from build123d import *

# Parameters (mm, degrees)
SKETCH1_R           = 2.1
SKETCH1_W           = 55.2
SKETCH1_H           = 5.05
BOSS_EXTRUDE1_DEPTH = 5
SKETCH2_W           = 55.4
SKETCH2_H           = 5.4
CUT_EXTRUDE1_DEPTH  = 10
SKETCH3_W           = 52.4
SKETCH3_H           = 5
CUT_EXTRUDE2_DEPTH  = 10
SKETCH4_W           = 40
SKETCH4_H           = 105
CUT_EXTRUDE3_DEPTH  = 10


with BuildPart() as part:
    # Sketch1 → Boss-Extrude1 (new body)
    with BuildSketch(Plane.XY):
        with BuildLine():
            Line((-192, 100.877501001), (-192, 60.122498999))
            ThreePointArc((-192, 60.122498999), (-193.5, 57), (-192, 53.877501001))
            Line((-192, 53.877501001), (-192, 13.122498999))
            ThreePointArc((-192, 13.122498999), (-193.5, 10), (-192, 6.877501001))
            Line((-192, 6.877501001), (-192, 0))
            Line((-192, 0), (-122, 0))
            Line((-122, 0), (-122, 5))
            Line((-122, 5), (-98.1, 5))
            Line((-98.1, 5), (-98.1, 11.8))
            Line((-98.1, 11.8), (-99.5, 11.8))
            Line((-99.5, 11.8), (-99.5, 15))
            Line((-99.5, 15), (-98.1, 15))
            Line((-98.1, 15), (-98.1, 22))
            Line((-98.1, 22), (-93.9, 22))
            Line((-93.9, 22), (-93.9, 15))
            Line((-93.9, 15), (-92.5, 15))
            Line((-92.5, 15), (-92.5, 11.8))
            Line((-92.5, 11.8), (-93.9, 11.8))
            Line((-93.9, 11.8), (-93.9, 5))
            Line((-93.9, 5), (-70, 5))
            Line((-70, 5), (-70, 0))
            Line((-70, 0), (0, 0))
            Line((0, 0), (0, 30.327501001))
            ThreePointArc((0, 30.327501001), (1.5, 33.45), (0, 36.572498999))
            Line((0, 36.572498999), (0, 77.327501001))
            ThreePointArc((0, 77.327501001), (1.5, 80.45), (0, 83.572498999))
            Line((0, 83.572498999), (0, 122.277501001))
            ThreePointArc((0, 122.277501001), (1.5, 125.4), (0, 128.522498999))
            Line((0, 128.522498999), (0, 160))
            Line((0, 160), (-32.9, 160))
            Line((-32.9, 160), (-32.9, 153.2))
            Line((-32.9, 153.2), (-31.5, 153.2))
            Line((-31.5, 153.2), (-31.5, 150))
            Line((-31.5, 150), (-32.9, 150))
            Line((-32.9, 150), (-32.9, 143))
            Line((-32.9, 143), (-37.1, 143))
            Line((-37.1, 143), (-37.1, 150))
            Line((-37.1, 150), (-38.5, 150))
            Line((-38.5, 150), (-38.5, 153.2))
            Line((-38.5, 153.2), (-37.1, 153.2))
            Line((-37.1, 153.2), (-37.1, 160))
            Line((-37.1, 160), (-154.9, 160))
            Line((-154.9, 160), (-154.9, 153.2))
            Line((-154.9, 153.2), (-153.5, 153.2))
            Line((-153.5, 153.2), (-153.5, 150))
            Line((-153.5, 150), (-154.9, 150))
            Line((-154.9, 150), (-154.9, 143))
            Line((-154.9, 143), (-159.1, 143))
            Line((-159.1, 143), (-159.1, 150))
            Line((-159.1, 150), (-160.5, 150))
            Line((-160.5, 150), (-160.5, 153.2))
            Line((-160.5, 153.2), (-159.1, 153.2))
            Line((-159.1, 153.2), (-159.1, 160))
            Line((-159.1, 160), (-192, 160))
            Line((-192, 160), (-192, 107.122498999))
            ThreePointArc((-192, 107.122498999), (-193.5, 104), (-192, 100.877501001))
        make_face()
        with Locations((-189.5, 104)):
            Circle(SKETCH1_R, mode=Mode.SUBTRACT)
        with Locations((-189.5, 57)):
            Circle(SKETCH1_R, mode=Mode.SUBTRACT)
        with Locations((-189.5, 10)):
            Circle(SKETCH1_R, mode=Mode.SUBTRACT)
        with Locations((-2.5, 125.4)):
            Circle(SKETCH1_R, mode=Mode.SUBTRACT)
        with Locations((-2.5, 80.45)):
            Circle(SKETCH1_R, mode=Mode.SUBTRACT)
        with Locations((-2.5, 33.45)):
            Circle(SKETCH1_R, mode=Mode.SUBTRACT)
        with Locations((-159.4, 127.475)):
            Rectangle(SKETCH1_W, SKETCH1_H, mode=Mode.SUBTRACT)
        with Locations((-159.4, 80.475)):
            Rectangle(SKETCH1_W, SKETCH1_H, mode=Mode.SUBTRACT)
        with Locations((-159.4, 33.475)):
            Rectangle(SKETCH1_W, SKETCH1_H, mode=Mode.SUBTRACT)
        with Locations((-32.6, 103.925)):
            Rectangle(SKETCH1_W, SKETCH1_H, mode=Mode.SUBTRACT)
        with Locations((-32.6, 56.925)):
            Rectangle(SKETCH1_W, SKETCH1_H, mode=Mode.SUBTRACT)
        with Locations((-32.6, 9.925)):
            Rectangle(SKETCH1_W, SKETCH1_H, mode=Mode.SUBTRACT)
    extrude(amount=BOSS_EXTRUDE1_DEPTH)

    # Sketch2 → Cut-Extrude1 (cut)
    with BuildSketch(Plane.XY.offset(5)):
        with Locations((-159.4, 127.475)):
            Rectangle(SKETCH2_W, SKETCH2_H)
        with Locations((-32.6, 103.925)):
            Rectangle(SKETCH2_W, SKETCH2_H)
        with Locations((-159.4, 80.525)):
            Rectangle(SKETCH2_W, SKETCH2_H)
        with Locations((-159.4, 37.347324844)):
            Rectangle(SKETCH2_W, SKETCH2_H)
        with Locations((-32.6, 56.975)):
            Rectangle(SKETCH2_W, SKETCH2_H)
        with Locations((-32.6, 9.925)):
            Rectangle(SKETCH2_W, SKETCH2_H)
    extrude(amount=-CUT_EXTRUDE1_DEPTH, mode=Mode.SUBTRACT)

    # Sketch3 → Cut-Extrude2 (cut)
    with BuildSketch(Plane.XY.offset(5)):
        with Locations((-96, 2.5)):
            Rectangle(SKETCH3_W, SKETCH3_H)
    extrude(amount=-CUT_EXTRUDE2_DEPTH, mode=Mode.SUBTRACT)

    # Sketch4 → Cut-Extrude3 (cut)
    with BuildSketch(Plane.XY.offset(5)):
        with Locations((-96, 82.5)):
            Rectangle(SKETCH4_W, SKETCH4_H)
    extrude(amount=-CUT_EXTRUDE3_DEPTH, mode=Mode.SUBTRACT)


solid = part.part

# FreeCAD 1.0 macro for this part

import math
import FreeCAD as App
import Part
import Sketcher


def add_polygon(sketch, points):
    """Adds a closed chain of lines whose ends are joined by coincident constraints."""
    first, n = sketch.GeometryCount, len(points)
    for a, b in zip(points, points[1:] + points[:1]):
        sketch.addGeometry(Part.LineSegment(App.Vector(*a, 0), App.Vector(*b, 0)), False)
    for i in range(n):
        sketch.addConstraint(Sketcher.Constraint("Coincident", first + i, 2, first + (i + 1) % n, 1))

doc = App.newDocument("Part")
body = doc.addObject("PartDesign::Body", "Body")

# Sketch on XY plane
sketch1 = body.newObject("Sketcher::SketchObject", "Sketch")
sketch1.AttachmentSupport = (doc.getObject("XY_Plane"), [""])
sketch1.MapMode = "FlatFace"
sketch1.addGeometry(Part.LineSegment(App.Vector(-192, 100.9, 0), App.Vector(-192, 60.1, 0)), False)  # 0
sketch1.addGeometry(Part.ArcOfCircle(Part.Circle(App.Vector(-189.5, 57, 0), App.Vector(0, 0, 1), 4), math.radians(129), math.radians(231)), False)  # 1
sketch1.addGeometry(Part.LineSegment(App.Vector(-192, 53.9, 0), App.Vector(-192, 13.1, 0)), False)  # 2
sketch1.addGeometry(Part.ArcOfCircle(Part.Circle(App.Vector(-189.5, 10, 0), App.Vector(0, 0, 1), 4), math.radians(129), math.radians(231)), False)  # 3
sketch1.addGeometry(Part.LineSegment(App.Vector(-192, 6.9, 0), App.Vector(-192, 0, 0)), False)  # 4
sketch1.addGeometry(Part.LineSegment(App.Vector(-192, 0, 0), App.Vector(-122, 0, 0)), False)  # 5
sketch1.addGeometry(Part.LineSegment(App.Vector(-122, 0, 0), App.Vector(-122, 5, 0)), False)  # 6
sketch1.addGeometry(Part.LineSegment(App.Vector(-122, 5, 0), App.Vector(-98.1, 5, 0)), False)  # 7
sketch1.addGeometry(Part.LineSegment(App.Vector(-98.1, 5, 0), App.Vector(-98.1, 11.8, 0)), False)  # 8
sketch1.addGeometry(Part.LineSegment(App.Vector(-98.1, 11.8, 0), App.Vector(-99.5, 11.8, 0)), False)  # 9
sketch1.addGeometry(Part.LineSegment(App.Vector(-99.5, 11.8, 0), App.Vector(-99.5, 15, 0)), False)  # 10
sketch1.addGeometry(Part.LineSegment(App.Vector(-99.5, 15, 0), App.Vector(-98.1, 15, 0)), False)  # 11
sketch1.addGeometry(Part.LineSegment(App.Vector(-98.1, 15, 0), App.Vector(-98.1, 22, 0)), False)  # 12
sketch1.addGeometry(Part.LineSegment(App.Vector(-98.1, 22, 0), App.Vector(-93.9, 22, 0)), False)  # 13
sketch1.addGeometry(Part.LineSegment(App.Vector(-93.9, 22, 0), App.Vector(-93.9, 15, 0)), False)  # 14
sketch1.addGeometry(Part.LineSegment(App.Vector(-93.9, 15, 0), App.Vector(-92.5, 15, 0)), False)  # 15
sketch1.addGeometry(Part.LineSegment(App.Vector(-92.5, 15, 0), App.Vector(-92.5, 11.8, 0)), False)  # 16
sketch1.addGeometry(Part.LineSegment(App.Vector(-92.5, 11.8, 0), App.Vector(-93.9, 11.8, 0)), False)  # 17
sketch1.addGeometry(Part.LineSegment(App.Vector(-93.9, 11.8, 0), App.Vector(-93.9, 5, 0)), False)  # 18
sketch1.addGeometry(Part.LineSegment(App.Vector(-93.9, 5, 0), App.Vector(-70, 5, 0)), False)  # 19
sketch1.addGeometry(Part.LineSegment(App.Vector(-70, 5, 0), App.Vector(-70, 0, 0)), False)  # 20
sketch1.addGeometry(Part.LineSegment(App.Vector(-70, 0, 0), App.Vector(0, 0, 0)), False)  # 21
sketch1.addGeometry(Part.LineSegment(App.Vector(0, 0, 0), App.Vector(0, 30.3, 0)), False)  # 22
sketch1.addGeometry(Part.ArcOfCircle(Part.Circle(App.Vector(-2.5, 33.5, 0), App.Vector(0, 0, 1), 4), math.radians(-51), math.radians(51)), False)  # 23
sketch1.addGeometry(Part.LineSegment(App.Vector(0, 36.6, 0), App.Vector(0, 77.3, 0)), False)  # 24
sketch1.addGeometry(Part.ArcOfCircle(Part.Circle(App.Vector(-2.5, 80.5, 0), App.Vector(0, 0, 1), 4), math.radians(-51), math.radians(51)), False)  # 25
sketch1.addGeometry(Part.LineSegment(App.Vector(0, 83.6, 0), App.Vector(0, 122.3, 0)), False)  # 26
sketch1.addGeometry(Part.ArcOfCircle(Part.Circle(App.Vector(-2.5, 125.4, 0), App.Vector(0, 0, 1), 4), math.radians(-51), math.radians(51)), False)  # 27
sketch1.addGeometry(Part.LineSegment(App.Vector(0, 128.5, 0), App.Vector(0, 160, 0)), False)  # 28
sketch1.addGeometry(Part.LineSegment(App.Vector(0, 160, 0), App.Vector(-32.9, 160, 0)), False)  # 29
sketch1.addGeometry(Part.LineSegment(App.Vector(-32.9, 160, 0), App.Vector(-32.9, 153.2, 0)), False)  # 30
sketch1.addGeometry(Part.LineSegment(App.Vector(-32.9, 153.2, 0), App.Vector(-31.5, 153.2, 0)), False)  # 31
sketch1.addGeometry(Part.LineSegment(App.Vector(-31.5, 153.2, 0), App.Vector(-31.5, 150, 0)), False)  # 32
sketch1.addGeometry(Part.LineSegment(App.Vector(-31.5, 150, 0), App.Vector(-32.9, 150, 0)), False)  # 33
sketch1.addGeometry(Part.LineSegment(App.Vector(-32.9, 150, 0), App.Vector(-32.9, 143, 0)), False)  # 34
sketch1.addGeometry(Part.LineSegment(App.Vector(-32.9, 143, 0), App.Vector(-37.1, 143, 0)), False)  # 35
sketch1.addGeometry(Part.LineSegment(App.Vector(-37.1, 143, 0), App.Vector(-37.1, 150, 0)), False)  # 36
sketch1.addGeometry(Part.LineSegment(App.Vector(-37.1, 150, 0), App.Vector(-38.5, 150, 0)), False)  # 37
sketch1.addGeometry(Part.LineSegment(App.Vector(-38.5, 150, 0), App.Vector(-38.5, 153.2, 0)), False)  # 38
sketch1.addGeometry(Part.LineSegment(App.Vector(-38.5, 153.2, 0), App.Vector(-37.1, 153.2, 0)), False)  # 39
sketch1.addGeometry(Part.LineSegment(App.Vector(-37.1, 153.2, 0), App.Vector(-37.1, 160, 0)), False)  # 40
sketch1.addGeometry(Part.LineSegment(App.Vector(-37.1, 160, 0), App.Vector(-154.9, 160, 0)), False)  # 41
sketch1.addGeometry(Part.LineSegment(App.Vector(-154.9, 160, 0), App.Vector(-154.9, 153.2, 0)), False)  # 42
sketch1.addGeometry(Part.LineSegment(App.Vector(-154.9, 153.2, 0), App.Vector(-153.5, 153.2, 0)), False)  # 43
sketch1.addGeometry(Part.LineSegment(App.Vector(-153.5, 153.2, 0), App.Vector(-153.5, 150, 0)), False)  # 44
sketch1.addGeometry(Part.LineSegment(App.Vector(-153.5, 150, 0), App.Vector(-154.9, 150, 0)), False)  # 45
sketch1.addGeometry(Part.LineSegment(App.Vector(-154.9, 150, 0), App.Vector(-154.9, 143, 0)), False)  # 46
sketch1.addGeometry(Part.LineSegment(App.Vector(-154.9, 143, 0), App.Vector(-159.1, 143, 0)), False)  # 47
sketch1.addGeometry(Part.LineSegment(App.Vector(-159.1, 143, 0), App.Vector(-159.1, 150, 0)), False)  # 48
sketch1.addGeometry(Part.LineSegment(App.Vector(-159.1, 150, 0), App.Vector(-160.5, 150, 0)), False)  # 49
sketch1.addGeometry(Part.LineSegment(App.Vector(-160.5, 150, 0), App.Vector(-160.5, 153.2, 0)), False)  # 50
sketch1.addGeometry(Part.LineSegment(App.Vector(-160.5, 153.2, 0), App.Vector(-159.1, 153.2, 0)), False)  # 51
sketch1.addGeometry(Part.LineSegment(App.Vector(-159.1, 153.2, 0), App.Vector(-159.1, 160, 0)), False)  # 52
sketch1.addGeometry(Part.LineSegment(App.Vector(-159.1, 160, 0), App.Vector(-192, 160, 0)), False)  # 53
sketch1.addGeometry(Part.LineSegment(App.Vector(-192, 160, 0), App.Vector(-192, 107.1, 0)), False)  # 54
sketch1.addGeometry(Part.ArcOfCircle(Part.Circle(App.Vector(-189.5, 104, 0), App.Vector(0, 0, 1), 4), math.radians(129), math.radians(231)), False)  # 55
sketch1.addGeometry(Part.Circle(App.Vector(-189.5, 10, 0), App.Vector(0, 0, 1), 2.1), False)  # 56
add_polygon(sketch1, [(-131.8, 30.9), (-187, 30.9), (-187, 36), (-131.8, 36)])  # lines 57-60
sketch1.addGeometry(Part.Circle(App.Vector(-189.5, 57, 0), App.Vector(0, 0, 1), 2.1), False)  # 61
add_polygon(sketch1, [(-5, 7.4), (-60.2, 7.4), (-60.2, 12.4), (-5, 12.4)])  # lines 62-65
sketch1.addGeometry(Part.Circle(App.Vector(-2.5, 33.5, 0), App.Vector(0, 0, 1), 2.1), False)  # 66
add_polygon(sketch1, [(-5, 54.4), (-60.2, 54.4), (-60.2, 59.5), (-5, 59.5)])  # lines 67-70
add_polygon(sketch1, [(-131.8, 78), (-187, 78), (-187, 83), (-131.8, 83)])  # lines 71-74
sketch1.addGeometry(Part.Circle(App.Vector(-189.5, 104, 0), App.Vector(0, 0, 1), 2.1), False)  # 75
add_polygon(sketch1, [(-131.8, 125), (-187, 125), (-187, 130), (-131.8, 130)])  # lines 76-79
sketch1.addGeometry(Part.Circle(App.Vector(-2.5, 80.5, 0), App.Vector(0, 0, 1), 2.1), False)  # 80
add_polygon(sketch1, [(-5, 101.4), (-60.2, 101.4), (-60.2, 106.5), (-5, 106.5)])  # lines 81-84
sketch1.addGeometry(Part.Circle(App.Vector(-2.5, 125.4, 0), App.Vector(0, 0, 1), 2.1), False)  # 85
sketch1.addConstraint([
    Sketcher.Constraint("Coincident", 0, 2, 1, 1),
    Sketcher.Constraint("Coincident", 1, 2, 2, 1),
    Sketcher.Constraint("Coincident", 2, 2, 3, 1),
    Sketcher.Constraint("Coincident", 3, 2, 4, 1),
    Sketcher.Constraint("Coincident", 4, 2, 5, 1),
    Sketcher.Constraint("Coincident", 5, 2, 6, 1),
    Sketcher.Constraint("Coincident", 6, 2, 7, 1),
    Sketcher.Constraint("Coincident", 7, 2, 8, 1),
    Sketcher.Constraint("Coincident", 8, 2, 9, 1),
    Sketcher.Constraint("Coincident", 9, 2, 10, 1),
    Sketcher.Constraint("Coincident", 10, 2, 11, 1),
    Sketcher.Constraint("Coincident", 11, 2, 12, 1),
    Sketcher.Constraint("Coincident", 12, 2, 13, 1),
    Sketcher.Constraint("Coincident", 13, 2, 14, 1),
    Sketcher.Constraint("Coincident", 14, 2, 15, 1),
    Sketcher.Constraint("Coincident", 15, 2, 16, 1),
    Sketcher.Constraint("Coincident", 16, 2, 17, 1),
    Sketcher.Constraint("Coincident", 17, 2, 18, 1),
    Sketcher.Constraint("Coincident", 18, 2, 19, 1),
    Sketcher.Constraint("Coincident", 19, 2, 20, 1),
    Sketcher.Constraint("Coincident", 20, 2, 21, 1),
    Sketcher.Constraint("Coincident", 21, 2, 22, 1),
    Sketcher.Constraint("Coincident", 22, 2, 23, 1),
    Sketcher.Constraint("Coincident", 23, 2, 24, 1),
    Sketcher.Constraint("Coincident", 24, 2, 25, 1),
    Sketcher.Constraint("Coincident", 25, 2, 26, 1),
    Sketcher.Constraint("Coincident", 26, 2, 27, 1),
    Sketcher.Constraint("Coincident", 27, 2, 28, 1),
    Sketcher.Constraint("Coincident", 28, 2, 29, 1),
    Sketcher.Constraint("Coincident", 29, 2, 30, 1),
    Sketcher.Constraint("Coincident", 30, 2, 31, 1),
    Sketcher.Constraint("Coincident", 31, 2, 32, 1),
    Sketcher.Constraint("Coincident", 32, 2, 33, 1),
    Sketcher.Constraint("Coincident", 33, 2, 34, 1),
    Sketcher.Constraint("Coincident", 34, 2, 35, 1),
    Sketcher.Constraint("Coincident", 35, 2, 36, 1),
    Sketcher.Constraint("Coincident", 36, 2, 37, 1),
    Sketcher.Constraint("Coincident", 37, 2, 38, 1),
    Sketcher.Constraint("Coincident", 38, 2, 39, 1),
    Sketcher.Constraint("Coincident", 39, 2, 40, 1),
    Sketcher.Constraint("Coincident", 40, 2, 41, 1),
    Sketcher.Constraint("Coincident", 41, 2, 42, 1),
    Sketcher.Constraint("Coincident", 42, 2, 43, 1),
    Sketcher.Constraint("Coincident", 43, 2, 44, 1),
    Sketcher.Constraint("Coincident", 44, 2, 45, 1),
    Sketcher.Constraint("Coincident", 45, 2, 46, 1),
    Sketcher.Constraint("Coincident", 46, 2, 47, 1),
    Sketcher.Constraint("Coincident", 47, 2, 48, 1),
    Sketcher.Constraint("Coincident", 48, 2, 49, 1),
    Sketcher.Constraint("Coincident", 49, 2, 50, 1),
    Sketcher.Constraint("Coincident", 50, 2, 51, 1),
    Sketcher.Constraint("Coincident", 51, 2, 52, 1),
    Sketcher.Constraint("Coincident", 52, 2, 53, 1),
    Sketcher.Constraint("Coincident", 53, 2, 54, 1),
    Sketcher.Constraint("Coincident", 54, 2, 55, 1),
    Sketcher.Constraint("Coincident", 55, 2, 0, 1),
    Sketcher.Constraint("Vertical", 0),
    Sketcher.Constraint("Vertical", 2),
    Sketcher.Constraint("Vertical", 4),
    Sketcher.Constraint("Horizontal", 5),
    Sketcher.Constraint("Vertical", 6),
    Sketcher.Constraint("Horizontal", 7),
    Sketcher.Constraint("Vertical", 8),
    Sketcher.Constraint("Horizontal", 9),
    Sketcher.Constraint("Vertical", 10),
    Sketcher.Constraint("Horizontal", 11),
    Sketcher.Constraint("Vertical", 12),
    Sketcher.Constraint("Horizontal", 13),
    Sketcher.Constraint("Vertical", 14),
    Sketcher.Constraint("Horizontal", 15),
    Sketcher.Constraint("Vertical", 16),
    Sketcher.Constraint("Horizontal", 17),
    Sketcher.Constraint("Vertical", 18),
    Sketcher.Constraint("Horizontal", 19),
    Sketcher.Constraint("Vertical", 20),
    Sketcher.Constraint("Horizontal", 21),
    Sketcher.Constraint("Vertical", 22),
    Sketcher.Constraint("Vertical", 24),
    Sketcher.Constraint("Vertical", 26),
    Sketcher.Constraint("Vertical", 28),
    Sketcher.Constraint("Horizontal", 29),
    Sketcher.Constraint("Vertical", 30),
    Sketcher.Constraint("Horizontal", 31),
    Sketcher.Constraint("Vertical", 32),
    Sketcher.Constraint("Horizontal", 33),
    Sketcher.Constraint("Vertical", 34),
    Sketcher.Constraint("Horizontal", 35),
    Sketcher.Constraint("Vertical", 36),
    Sketcher.Constraint("Horizontal", 37),
    Sketcher.Constraint("Vertical", 38),
    Sketcher.Constraint("Horizontal", 39),
    Sketcher.Constraint("Vertical", 40),
    Sketcher.Constraint("Horizontal", 41),
    Sketcher.Constraint("Vertical", 42),
    Sketcher.Constraint("Horizontal", 43),
    Sketcher.Constraint("Vertical", 44),
    Sketcher.Constraint("Horizontal", 45),
    Sketcher.Constraint("Vertical", 46),
    Sketcher.Constraint("Horizontal", 47),
    Sketcher.Constraint("Vertical", 48),
    Sketcher.Constraint("Horizontal", 49),
    Sketcher.Constraint("Vertical", 50),
    Sketcher.Constraint("Horizontal", 51),
    Sketcher.Constraint("Vertical", 52),
    Sketcher.Constraint("Horizontal", 53),
    Sketcher.Constraint("Vertical", 54),
    Sketcher.Constraint("Horizontal", 57),
    Sketcher.Constraint("Vertical", 58),
    Sketcher.Constraint("Horizontal", 59),
    Sketcher.Constraint("Vertical", 60),
    Sketcher.Constraint("Horizontal", 62),
    Sketcher.Constraint("Vertical", 63),
    Sketcher.Constraint("Horizontal", 64),
    Sketcher.Constraint("Vertical", 65),
    Sketcher.Constraint("Horizontal", 67),
    Sketcher.Constraint("Vertical", 68),
    Sketcher.Constraint("Horizontal", 69),
    Sketcher.Constraint("Vertical", 70),
    Sketcher.Constraint("Horizontal", 71),
    Sketcher.Constraint("Vertical", 72),
    Sketcher.Constraint("Horizontal", 73),
    Sketcher.Constraint("Vertical", 74),
    Sketcher.Constraint("Horizontal", 76),
    Sketcher.Constraint("Vertical", 77),
    Sketcher.Constraint("Horizontal", 78),
    Sketcher.Constraint("Vertical", 79),
    Sketcher.Constraint("Horizontal", 81),
    Sketcher.Constraint("Vertical", 82),
    Sketcher.Constraint("Horizontal", 83),
    Sketcher.Constraint("Vertical", 84),
    Sketcher.Constraint("Coincident", 21, 2, -1, 1),
    Sketcher.Constraint("Coincident", 56, 3, 3, 3),
    Sketcher.Constraint("Coincident", 61, 3, 1, 3),
    Sketcher.Constraint("Coincident", 66, 3, 23, 3),
    Sketcher.Constraint("Coincident", 75, 3, 55, 3),
    Sketcher.Constraint("Coincident", 80, 3, 25, 3),
    Sketcher.Constraint("Coincident", 85, 3, 27, 3),
    Sketcher.Constraint("Equal", 1, 3),
    Sketcher.Constraint("Equal", 3, 23),
    Sketcher.Constraint("Equal", 23, 25),
    Sketcher.Constraint("Equal", 25, 27),
    Sketcher.Constraint("Equal", 27, 55),
    Sketcher.Constraint("Equal", 56, 61),
    Sketcher.Constraint("Equal", 61, 66),
    Sketcher.Constraint("Equal", 66, 75),
    Sketcher.Constraint("Equal", 75, 80),
    Sketcher.Constraint("Equal", 80, 85),
    Sketcher.Constraint("PointOnObject", 4, 2, -1),
    Sketcher.Constraint("PointOnObject", 23, 2, -2),
    Sketcher.Constraint("PointOnObject", 25, 2, -2),
    Sketcher.Constraint("PointOnObject", 27, 2, -2),
    Sketcher.Constraint("Horizontal", 11, 2, 14, 2),
    Sketcher.Constraint("Horizontal", 9, 2, 16, 2),
    Sketcher.Constraint("Horizontal", 7, 2, 18, 2),
    Sketcher.Constraint("Horizontal", 33, 2, 36, 2),
    Sketcher.Constraint("Horizontal", 31, 2, 38, 2),
    Sketcher.Constraint("Horizontal", 29, 2, 40, 2),
    Sketcher.Constraint("Horizontal", 39, 2, 42, 2),
    Sketcher.Constraint("Horizontal", 37, 2, 44, 2),
    Sketcher.Constraint("Horizontal", 35, 2, 46, 2),
    Sketcher.Constraint("Horizontal", 45, 2, 48, 2),
    Sketcher.Constraint("Horizontal", 43, 2, 50, 2),
    Sketcher.Constraint("Horizontal", 41, 2, 52, 2),
    Sketcher.Constraint("Vertical", 1, 3, 3, 3),
    Sketcher.Constraint("Vertical", 23, 3, 25, 3),
    Sketcher.Constraint("Vertical", 25, 3, 27, 3),
    Sketcher.Constraint("Vertical", 3, 3, 55, 3),
    Sketcher.Constraint("Vertical", 0, 2, 1, 2),
    Sketcher.Constraint("Vertical", 2, 2, 3, 2),
    Sketcher.Constraint("Vertical", 8, 2, 11, 2),
    Sketcher.Constraint("Vertical", 14, 2, 17, 2),
    Sketcher.Constraint("Vertical", 30, 2, 33, 2),
    Sketcher.Constraint("Vertical", 36, 2, 39, 2),
    Sketcher.Constraint("Vertical", 42, 2, 45, 2),
    Sketcher.Constraint("Vertical", 48, 2, 51, 2),
    Sketcher.Constraint("Vertical", 4, 2, 53, 2),
    Sketcher.Constraint("Vertical", 63, 2, 67, 2),
    Sketcher.Constraint("Vertical", 65, 2, 69, 2),
    Sketcher.Constraint("Vertical", 58, 2, 71, 2),
    Sketcher.Constraint("Vertical", 60, 2, 73, 2),
    Sketcher.Constraint("Vertical", 72, 2, 76, 2),
    Sketcher.Constraint("Vertical", 74, 2, 78, 2),
    Sketcher.Constraint("Vertical", 68, 2, 81, 2),
    Sketcher.Constraint("Vertical", 70, 2, 83, 2),
    Sketcher.Constraint("Equal", 11, 15),
    Sketcher.Constraint("Equal", 7, 19),
    Sketcher.Constraint("Equal", 5, 21),
    Sketcher.Constraint("Equal", 17, 31),
    Sketcher.Constraint("Equal", 13, 35),
    Sketcher.Constraint("Equal", 33, 37),
    Sketcher.Constraint("Equal", 39, 43),
    Sketcher.Constraint("Equal", 35, 47),
    Sketcher.Constraint("Equal", 45, 49),
    Sketcher.Constraint("Equal", 29, 53),
    Sketcher.Constraint("Equal", 59, 62),
    Sketcher.Constraint("Equal", 0, 2),
    Sketcher.Constraint("Equal", 2, 24),
    Sketcher.Constraint("Equal", 18, 30),
    Sketcher.Constraint("Equal", 16, 32),
    Sketcher.Constraint("Equal", 14, 34),
    Sketcher.Constraint("Equal", 60, 63),
    Sketcher.Constraint("Equal", 65, 68),
    Sketcher.Constraint("Equal", 70, 72),
    Sketcher.Constraint("Equal", 74, 77),
    Sketcher.Constraint("Equal", 79, 82),
    Sketcher.Constraint("Radius", 1, 4.0),
    Sketcher.Constraint("Diameter", 56, 4.2),
    Sketcher.Constraint("DistanceX", 5, 1, 5, 2, 70.0),
    Sketcher.Constraint("DistanceY", 6, 1, 6, 2, 5.0),
    Sketcher.Constraint("DistanceY", 12, 1, 12, 2, 7.0),
    Sketcher.Constraint("DistanceX", 7, 1, 7, 2, 23.9),
    Sketcher.Constraint("DistanceX", 9, 2, 9, 1, 1.4),
    Sketcher.Constraint("DistanceX", 13, 1, 13, 2, 4.2),
    Sketcher.Constraint("DistanceX", 29, 2, 29, 1, 32.9),
    Sketcher.Constraint("DistanceX", 57, 2, 57, 1, 55.2),
    Sketcher.Constraint("DistanceY", 8, 1, 8, 2, 6.8),
    Sketcher.Constraint("DistanceY", 10, 1, 10, 2, 3.2),
    Sketcher.Constraint("DistanceY", -1, 1, 1, 3, 57.0),
    Sketcher.Constraint("DistanceY", -1, 1, 3, 3, 10.0),
    Sketcher.Constraint("DistanceY", -1, 1, 28, 2, 160.0),
    Sketcher.Constraint("DistanceX", 57, 2, -1, 1, 187.0),
    Sketcher.Constraint("DistanceY", -1, 1, 58, 2, 36.0),
    Sketcher.Constraint("DistanceX", 64, 2, -1, 1, 5.0),
    Sketcher.Constraint("DistanceY", -1, 1, 72, 2, 83.0),
    Sketcher.Constraint("DistanceY", -1, 1, 77, 2, 130.0),
    Sketcher.Constraint("DistanceY", 58, 1, 58, 2, 5.05),
    Sketcher.Constraint("DistanceX", 1, 3, -1, 1, 189.5),
    Sketcher.Constraint("DistanceX", 23, 3, -1, 1, 2.5),
    Sketcher.Constraint("DistanceY", -1, 1, 27, 3, 125.4),
    Sketcher.Constraint("DistanceY", -1, 1, 62, 2, 7.4),
    Sketcher.Constraint("DistanceY", -1, 1, 67, 2, 54.4),
    Sketcher.Constraint("DistanceY", -1, 1, 81, 2, 101.4),
    Sketcher.Constraint("DistanceY", -1, 1, 23, 3, 33.45),
])
pad1 = body.newObject("PartDesign::Pad", "Pad")
pad1.Profile = sketch1
pad1.Length = 5

# Sketch on XY plane
sketch2 = body.newObject("Sketcher::SketchObject", "Sketch001")
sketch2.AttachmentSupport = (doc.getObject("XY_Plane"), [""])
sketch2.MapMode = "FlatFace"
sketch2.AttachmentOffset = App.Placement(App.Vector(0, 0, 5), App.Rotation())
add_polygon(sketch2, [(-187, 130), (-187, 125), (-132, 125), (-132, 130)])  # lines 0-3
add_polygon(sketch2, [(-60, 107), (-60, 101), (-5, 101), (-5, 107)])  # lines 4-7
add_polygon(sketch2, [(-187, 83), (-187, 78), (-132, 78), (-132, 83)])  # lines 8-11
add_polygon(sketch2, [(-187, 40), (-187, 35), (-132, 35), (-132, 40)])  # lines 12-15
add_polygon(sketch2, [(-60, 60), (-60, 54), (-5, 54), (-5, 60)])  # lines 16-19
add_polygon(sketch2, [(-60, 13), (-60, 7), (-5, 7), (-5, 13)])  # lines 20-23
sketch2.addConstraint([
    Sketcher.Constraint("Vertical", 0),
    Sketcher.Constraint("Horizontal", 1),
    Sketcher.Constraint("Vertical", 2),
    Sketcher.Constraint("Horizontal", 3),
    Sketcher.Constraint("Vertical", 4),
    Sketcher.Constraint("Horizontal", 5),
    Sketcher.Constraint("Vertical", 6),
    Sketcher.Constraint("Horizontal", 7),
    Sketcher.Constraint("Vertical", 8),
    Sketcher.Constraint("Horizontal", 9),
    Sketcher.Constraint("Vertical", 10),
    Sketcher.Constraint("Horizontal", 11),
    Sketcher.Constraint("Vertical", 12),
    Sketcher.Constraint("Horizontal", 13),
    Sketcher.Constraint("Vertical", 14),
    Sketcher.Constraint("Horizontal", 15),
    Sketcher.Constraint("Vertical", 16),
    Sketcher.Constraint("Horizontal", 17),
    Sketcher.Constraint("Vertical", 18),
    Sketcher.Constraint("Horizontal", 19),
    Sketcher.Constraint("Vertical", 20),
    Sketcher.Constraint("Horizontal", 21),
    Sketcher.Constraint("Vertical", 22),
    Sketcher.Constraint("Horizontal", 23),
    Sketcher.Constraint("Vertical", 3, 2, 8, 2),
    Sketcher.Constraint("Vertical", 2, 2, 9, 2),
    Sketcher.Constraint("Vertical", 11, 2, 12, 2),
    Sketcher.Constraint("Vertical", 10, 2, 13, 2),
    Sketcher.Constraint("Vertical", 7, 2, 16, 2),
    Sketcher.Constraint("Vertical", 6, 2, 17, 2),
    Sketcher.Constraint("Vertical", 19, 2, 20, 2),
    Sketcher.Constraint("Vertical", 18, 2, 21, 2),
    Sketcher.Constraint("Equal", 3, 5),
    Sketcher.Constraint("Equal", 2, 4),
    Sketcher.Constraint("Equal", 6, 8),
    Sketcher.Constraint("Equal", 10, 12),
    Sketcher.Constraint("Equal", 14, 16),
    Sketcher.Constraint("Equal", 18, 20),
    Sketcher.Constraint("DistanceX", 1, 1, 1, 2, 55.4),
    Sketcher.Constraint("DistanceY", 0, 2, 0, 1, 5.4),
    Sketcher.Constraint("DistanceX", 0, 2, -1, 1, 187.1),
    Sketcher.Constraint("DistanceX", 4, 2, -1, 1, 60.3),
    Sketcher.Constraint("DistanceY", 8, 2, 4, 2, 23.4),
    Sketcher.Constraint("DistanceY", 4, 2, 1, 2, 23.55),
    Sketcher.Constraint("DistanceY", 16, 2, 4, 2, 46.95),
    Sketcher.Constraint("DistanceY", 20, 2, 16, 2, 47.05),
    Sketcher.Constraint("DistanceY", -1, 1, 0, 2, 124.775),
    Sketcher.Constraint("DistanceY", -1, 1, 12, 2, 34.647325),
])
pocket1 = body.newObject("PartDesign::Pocket", "Pocket")
pocket1.Profile = sketch2
pocket1.Length = 10

# Sketch on XY plane
sketch3 = body.newObject("Sketcher::SketchObject", "Sketch002")
sketch3.AttachmentSupport = (doc.getObject("XY_Plane"), [""])
sketch3.MapMode = "FlatFace"
sketch3.AttachmentOffset = App.Placement(App.Vector(0, 0, 5), App.Rotation())
add_polygon(sketch3, [(-122, 5), (-122, 0), (-70, 0), (-70, 5)])  # lines 0-3
sketch3.addConstraint([
    Sketcher.Constraint("Vertical", 0),
    Sketcher.Constraint("Horizontal", 1),
    Sketcher.Constraint("Vertical", 2),
    Sketcher.Constraint("Horizontal", 3),
    Sketcher.Constraint("PointOnObject", 0, 2, -1),
    Sketcher.Constraint("DistanceY", 0, 2, 0, 1, 5.0),
    Sketcher.Constraint("DistanceX", 1, 1, 1, 2, 52.4),
    Sketcher.Constraint("DistanceX", 0, 2, -1, 1, 122.2),
])
pocket2 = body.newObject("PartDesign::Pocket", "Pocket001")
pocket2.Profile = sketch3
pocket2.Length = 10

# Sketch on XY plane
sketch4 = body.newObject("Sketcher::SketchObject", "Sketch003")
sketch4.AttachmentSupport = (doc.getObject("XY_Plane"), [""])
sketch4.MapMode = "FlatFace"
sketch4.AttachmentOffset = App.Placement(App.Vector(0, 0, 5), App.Rotation())
add_polygon(sketch4, [(-116, 135), (-116, 30), (-76, 30), (-76, 135)])  # lines 0-3
sketch4.addConstraint([
    Sketcher.Constraint("Vertical", 0),
    Sketcher.Constraint("Horizontal", 1),
    Sketcher.Constraint("Vertical", 2),
    Sketcher.Constraint("Horizontal", 3),
    Sketcher.Constraint("DistanceX", 1, 1, 1, 2, 40.0),
    Sketcher.Constraint("DistanceY", 0, 2, 0, 1, 105.0),
    Sketcher.Constraint("DistanceX", 0, 2, -1, 1, 116.0),
    Sketcher.Constraint("DistanceY", -1, 1, 0, 2, 30.0),
])
pocket3 = body.newObject("PartDesign::Pocket", "Pocket002")
pocket3.Profile = sketch4
pocket3.Length = 10

doc.recompute()
